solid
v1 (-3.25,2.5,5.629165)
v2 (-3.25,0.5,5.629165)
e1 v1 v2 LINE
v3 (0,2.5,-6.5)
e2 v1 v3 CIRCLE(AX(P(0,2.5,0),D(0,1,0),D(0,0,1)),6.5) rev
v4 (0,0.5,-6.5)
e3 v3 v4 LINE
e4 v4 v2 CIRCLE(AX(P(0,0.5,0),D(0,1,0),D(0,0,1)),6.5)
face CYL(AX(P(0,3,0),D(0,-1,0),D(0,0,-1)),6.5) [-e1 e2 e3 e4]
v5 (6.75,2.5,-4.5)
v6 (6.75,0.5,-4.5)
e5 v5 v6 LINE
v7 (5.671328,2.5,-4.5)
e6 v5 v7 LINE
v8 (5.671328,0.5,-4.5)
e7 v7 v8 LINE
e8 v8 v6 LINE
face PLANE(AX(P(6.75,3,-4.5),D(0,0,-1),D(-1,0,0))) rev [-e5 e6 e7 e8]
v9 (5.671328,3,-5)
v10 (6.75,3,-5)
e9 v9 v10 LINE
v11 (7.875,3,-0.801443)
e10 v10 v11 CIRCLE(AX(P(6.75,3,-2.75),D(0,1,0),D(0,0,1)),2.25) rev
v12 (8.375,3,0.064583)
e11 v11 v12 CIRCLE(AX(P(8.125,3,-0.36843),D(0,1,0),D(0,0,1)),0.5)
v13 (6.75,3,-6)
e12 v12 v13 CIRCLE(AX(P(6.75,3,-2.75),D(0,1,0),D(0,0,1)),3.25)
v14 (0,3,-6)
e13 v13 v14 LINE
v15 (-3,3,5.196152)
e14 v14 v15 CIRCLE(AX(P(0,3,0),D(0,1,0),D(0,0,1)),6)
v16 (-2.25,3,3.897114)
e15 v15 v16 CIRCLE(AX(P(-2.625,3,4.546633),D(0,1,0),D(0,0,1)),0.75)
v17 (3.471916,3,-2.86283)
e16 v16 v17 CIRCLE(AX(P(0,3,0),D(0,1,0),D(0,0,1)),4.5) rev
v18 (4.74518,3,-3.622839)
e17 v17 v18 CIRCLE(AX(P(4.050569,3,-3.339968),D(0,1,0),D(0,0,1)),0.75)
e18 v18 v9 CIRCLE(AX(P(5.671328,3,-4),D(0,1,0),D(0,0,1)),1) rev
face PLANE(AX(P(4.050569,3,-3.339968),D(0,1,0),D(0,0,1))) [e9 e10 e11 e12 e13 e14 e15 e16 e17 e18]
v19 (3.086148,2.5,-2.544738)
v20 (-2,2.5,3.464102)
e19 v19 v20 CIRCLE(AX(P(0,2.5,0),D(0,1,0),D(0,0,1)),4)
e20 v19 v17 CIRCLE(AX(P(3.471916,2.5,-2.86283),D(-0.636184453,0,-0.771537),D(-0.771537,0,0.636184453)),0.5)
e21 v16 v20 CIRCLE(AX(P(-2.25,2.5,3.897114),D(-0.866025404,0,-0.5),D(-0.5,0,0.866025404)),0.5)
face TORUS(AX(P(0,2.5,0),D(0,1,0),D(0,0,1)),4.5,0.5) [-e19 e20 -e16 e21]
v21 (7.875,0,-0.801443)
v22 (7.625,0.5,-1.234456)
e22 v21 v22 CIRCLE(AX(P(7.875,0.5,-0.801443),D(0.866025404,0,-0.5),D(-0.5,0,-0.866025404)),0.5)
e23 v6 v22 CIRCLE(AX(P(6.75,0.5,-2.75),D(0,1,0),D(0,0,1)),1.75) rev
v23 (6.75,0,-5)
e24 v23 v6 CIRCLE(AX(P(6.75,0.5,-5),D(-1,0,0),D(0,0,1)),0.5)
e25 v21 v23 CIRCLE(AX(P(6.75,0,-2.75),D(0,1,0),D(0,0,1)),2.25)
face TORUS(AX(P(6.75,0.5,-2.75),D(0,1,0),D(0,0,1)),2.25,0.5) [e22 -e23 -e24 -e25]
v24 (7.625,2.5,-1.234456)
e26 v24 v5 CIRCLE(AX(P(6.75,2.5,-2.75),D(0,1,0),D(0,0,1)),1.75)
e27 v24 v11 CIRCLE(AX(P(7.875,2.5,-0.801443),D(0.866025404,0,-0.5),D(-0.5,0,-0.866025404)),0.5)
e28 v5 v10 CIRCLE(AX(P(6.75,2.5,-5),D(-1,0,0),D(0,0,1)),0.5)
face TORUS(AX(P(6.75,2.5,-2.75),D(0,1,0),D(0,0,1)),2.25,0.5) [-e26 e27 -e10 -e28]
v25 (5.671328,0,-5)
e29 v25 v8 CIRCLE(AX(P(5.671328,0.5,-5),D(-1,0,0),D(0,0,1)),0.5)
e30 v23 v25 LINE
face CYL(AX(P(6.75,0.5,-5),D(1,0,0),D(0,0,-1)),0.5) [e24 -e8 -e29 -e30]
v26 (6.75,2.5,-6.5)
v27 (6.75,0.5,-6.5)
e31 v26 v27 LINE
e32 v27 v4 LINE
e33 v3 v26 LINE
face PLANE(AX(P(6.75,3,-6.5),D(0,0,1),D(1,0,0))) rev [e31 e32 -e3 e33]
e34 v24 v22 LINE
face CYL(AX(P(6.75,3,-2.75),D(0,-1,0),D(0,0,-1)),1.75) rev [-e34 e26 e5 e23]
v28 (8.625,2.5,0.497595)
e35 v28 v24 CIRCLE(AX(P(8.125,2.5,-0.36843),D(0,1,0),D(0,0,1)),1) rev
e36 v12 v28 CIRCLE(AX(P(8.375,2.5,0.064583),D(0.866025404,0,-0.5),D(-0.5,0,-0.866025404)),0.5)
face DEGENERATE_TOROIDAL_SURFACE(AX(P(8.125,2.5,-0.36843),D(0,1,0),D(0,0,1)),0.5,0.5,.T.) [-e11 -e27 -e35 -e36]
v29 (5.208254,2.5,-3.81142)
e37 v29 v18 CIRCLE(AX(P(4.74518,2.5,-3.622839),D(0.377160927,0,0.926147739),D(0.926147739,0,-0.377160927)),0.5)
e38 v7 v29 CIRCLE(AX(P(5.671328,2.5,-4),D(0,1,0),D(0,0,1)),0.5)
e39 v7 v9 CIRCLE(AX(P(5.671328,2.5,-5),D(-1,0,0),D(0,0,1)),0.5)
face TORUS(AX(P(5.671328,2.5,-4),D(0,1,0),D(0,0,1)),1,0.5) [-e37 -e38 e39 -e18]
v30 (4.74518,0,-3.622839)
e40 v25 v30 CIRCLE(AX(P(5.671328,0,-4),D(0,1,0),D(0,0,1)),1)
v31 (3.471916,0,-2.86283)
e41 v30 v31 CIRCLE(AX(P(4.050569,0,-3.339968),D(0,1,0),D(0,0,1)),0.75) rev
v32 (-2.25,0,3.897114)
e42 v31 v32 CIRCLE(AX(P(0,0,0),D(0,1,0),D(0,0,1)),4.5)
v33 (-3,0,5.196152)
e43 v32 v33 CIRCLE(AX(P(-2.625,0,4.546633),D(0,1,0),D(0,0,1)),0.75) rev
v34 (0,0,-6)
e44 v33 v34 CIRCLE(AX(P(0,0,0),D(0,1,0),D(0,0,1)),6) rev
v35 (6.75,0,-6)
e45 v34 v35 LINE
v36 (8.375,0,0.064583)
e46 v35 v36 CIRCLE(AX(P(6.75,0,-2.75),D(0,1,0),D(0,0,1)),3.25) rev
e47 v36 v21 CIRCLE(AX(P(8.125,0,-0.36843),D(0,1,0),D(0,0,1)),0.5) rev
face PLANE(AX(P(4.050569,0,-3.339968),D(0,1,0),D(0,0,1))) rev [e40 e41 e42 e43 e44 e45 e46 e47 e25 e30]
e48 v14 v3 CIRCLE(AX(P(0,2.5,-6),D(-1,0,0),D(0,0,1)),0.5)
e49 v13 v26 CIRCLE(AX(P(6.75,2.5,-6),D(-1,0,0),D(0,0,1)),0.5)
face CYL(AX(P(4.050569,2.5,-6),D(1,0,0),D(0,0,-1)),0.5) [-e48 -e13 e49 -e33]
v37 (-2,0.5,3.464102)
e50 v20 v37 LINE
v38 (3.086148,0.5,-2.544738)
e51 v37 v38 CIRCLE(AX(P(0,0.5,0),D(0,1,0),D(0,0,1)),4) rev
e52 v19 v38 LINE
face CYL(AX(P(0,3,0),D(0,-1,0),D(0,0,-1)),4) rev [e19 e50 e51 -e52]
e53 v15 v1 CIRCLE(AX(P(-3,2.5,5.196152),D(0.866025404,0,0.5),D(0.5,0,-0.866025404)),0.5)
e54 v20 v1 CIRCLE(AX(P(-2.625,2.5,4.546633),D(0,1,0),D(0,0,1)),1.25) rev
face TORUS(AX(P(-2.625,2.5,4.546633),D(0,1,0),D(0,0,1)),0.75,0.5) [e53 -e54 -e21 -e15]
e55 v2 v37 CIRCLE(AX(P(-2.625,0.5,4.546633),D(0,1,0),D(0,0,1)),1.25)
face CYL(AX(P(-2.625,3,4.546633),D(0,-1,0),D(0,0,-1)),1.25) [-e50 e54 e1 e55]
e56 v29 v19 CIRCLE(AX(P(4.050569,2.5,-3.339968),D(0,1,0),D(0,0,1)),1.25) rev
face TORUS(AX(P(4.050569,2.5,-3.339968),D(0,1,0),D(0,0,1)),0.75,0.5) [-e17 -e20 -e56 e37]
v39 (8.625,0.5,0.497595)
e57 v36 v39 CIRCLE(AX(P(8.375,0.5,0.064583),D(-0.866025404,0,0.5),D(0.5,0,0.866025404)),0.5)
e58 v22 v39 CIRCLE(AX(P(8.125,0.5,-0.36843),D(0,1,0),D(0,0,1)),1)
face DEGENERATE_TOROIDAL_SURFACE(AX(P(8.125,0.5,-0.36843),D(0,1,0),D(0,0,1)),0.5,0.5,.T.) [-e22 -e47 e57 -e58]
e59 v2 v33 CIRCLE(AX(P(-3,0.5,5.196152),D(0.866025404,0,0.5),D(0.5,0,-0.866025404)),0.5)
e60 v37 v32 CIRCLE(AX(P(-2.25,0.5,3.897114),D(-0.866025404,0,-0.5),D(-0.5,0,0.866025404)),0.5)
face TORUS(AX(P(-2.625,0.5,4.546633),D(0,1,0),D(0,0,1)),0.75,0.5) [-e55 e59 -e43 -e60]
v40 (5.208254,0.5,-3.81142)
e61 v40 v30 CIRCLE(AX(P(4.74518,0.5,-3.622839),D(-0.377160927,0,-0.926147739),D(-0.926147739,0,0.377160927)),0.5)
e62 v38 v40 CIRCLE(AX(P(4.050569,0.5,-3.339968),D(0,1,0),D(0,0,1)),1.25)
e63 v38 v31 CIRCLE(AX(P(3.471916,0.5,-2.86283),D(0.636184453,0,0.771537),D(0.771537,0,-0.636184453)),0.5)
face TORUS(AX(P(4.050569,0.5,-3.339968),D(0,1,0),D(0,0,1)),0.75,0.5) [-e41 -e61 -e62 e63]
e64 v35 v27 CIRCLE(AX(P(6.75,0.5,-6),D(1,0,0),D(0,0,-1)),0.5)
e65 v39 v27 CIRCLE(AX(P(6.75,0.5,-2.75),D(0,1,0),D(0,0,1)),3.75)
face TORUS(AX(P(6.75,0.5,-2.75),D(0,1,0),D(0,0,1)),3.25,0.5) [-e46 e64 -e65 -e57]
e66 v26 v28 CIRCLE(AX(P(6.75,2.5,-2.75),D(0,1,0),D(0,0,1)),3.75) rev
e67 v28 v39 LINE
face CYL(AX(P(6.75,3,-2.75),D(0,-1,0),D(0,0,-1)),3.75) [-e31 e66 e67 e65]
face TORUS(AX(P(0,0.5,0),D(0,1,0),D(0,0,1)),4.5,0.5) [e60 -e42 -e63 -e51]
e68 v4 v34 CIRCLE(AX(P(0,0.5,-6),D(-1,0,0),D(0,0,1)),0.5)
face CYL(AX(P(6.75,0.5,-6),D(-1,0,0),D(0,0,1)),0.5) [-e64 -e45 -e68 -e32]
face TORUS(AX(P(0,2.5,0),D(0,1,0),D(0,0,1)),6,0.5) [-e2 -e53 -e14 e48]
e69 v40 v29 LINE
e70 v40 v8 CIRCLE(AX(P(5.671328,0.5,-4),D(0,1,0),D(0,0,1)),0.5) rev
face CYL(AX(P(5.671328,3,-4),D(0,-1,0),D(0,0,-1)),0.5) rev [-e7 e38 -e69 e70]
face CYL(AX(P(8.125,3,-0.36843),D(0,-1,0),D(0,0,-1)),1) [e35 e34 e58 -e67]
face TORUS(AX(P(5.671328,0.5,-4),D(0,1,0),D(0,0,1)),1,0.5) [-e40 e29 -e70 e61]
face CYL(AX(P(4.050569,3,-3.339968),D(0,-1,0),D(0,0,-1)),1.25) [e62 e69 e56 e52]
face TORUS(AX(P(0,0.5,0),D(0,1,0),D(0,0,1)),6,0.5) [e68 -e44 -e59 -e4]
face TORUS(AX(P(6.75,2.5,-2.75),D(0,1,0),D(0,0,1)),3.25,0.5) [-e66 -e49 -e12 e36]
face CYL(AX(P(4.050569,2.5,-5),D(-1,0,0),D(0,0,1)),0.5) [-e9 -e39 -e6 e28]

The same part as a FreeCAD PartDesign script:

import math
import FreeCAD as App
import Part
import Sketcher
Q = App.Units.Quantity


def edges_at(feature, points):
    """Names of the edges that pass closest to the given points."""
    edges = feature.Shape.Edges
    near = lambda p: min(range(len(edges)), key=lambda i: edges[i].distToShape(Part.Vertex(*p))[0])
    return sorted({f"Edge{near(p) + 1}" for p in points})

doc = App.newDocument("Part")
body = doc.addObject("PartDesign::Body", "Body")

# Sketch on XZ plane
sketch1 = body.newObject("Sketcher::SketchObject", "Sketch")
sketch1.AttachmentSupport = (doc.getObject("XZ_Plane"), [""])
sketch1.MapMode = "FlatFace"
sketch1.addGeometry(Part.LineSegment(App.Vector(4.690416, -4.5, 0), App.Vector(6.75, -4.5, 0)), False)
sketch1.addGeometry(Part.ArcOfCircle(Part.Circle(App.Vector(6.75, -2.75, 0), App.Vector(0, 0, 1), 1.75), math.radians(-90), math.radians(60)), False)
sketch1.addGeometry(Part.ArcOfCircle(Part.Circle(App.Vector(8.125, -0.36843, 0), App.Vector(0, 0, 1), 1), math.radians(60), math.radians(240)), False)
sketch1.addGeometry(Part.ArcOfCircle(Part.Circle(App.Vector(6.75, -2.75, 0), App.Vector(0, 0, 1), 3.75), math.radians(-90), math.radians(60)), False)
sketch1.addGeometry(Part.LineSegment(App.Vector(6.75, -6.5, 0), App.Vector(0, -6.5, 0)), False)
sketch1.addGeometry(Part.ArcOfCircle(Part.Circle(App.Vector(0, 0, 0), App.Vector(0, 0, 1), 6.5), math.radians(120), math.radians(270)), False)
sketch1.addGeometry(Part.ArcOfCircle(Part.Circle(App.Vector(-2.625, 4.546633, 0), App.Vector(0, 0, 1), 1.25), math.radians(-60), math.radians(120)), False)
sketch1.addGeometry(Part.ArcOfCircle(Part.Circle(App.Vector(0, 0, 0), App.Vector(0, 0, 1), 4), math.radians(120), math.radians(320.492111)), False)
sketch1.addGeometry(Part.ArcOfCircle(Part.Circle(App.Vector(4.050569, -3.339968, 0), App.Vector(0, 0, 1), 1.25), math.radians(-39.507889), math.radians(140.492111)), False)
sketch1.addGeometry(Part.ArcOfCircle(Part.Circle(App.Vector(0, 0, 0), App.Vector(0, 0, 1), 6.5), math.radians(-43.813062), math.radians(-39.507888)), False)
sketch1.addConstraint(Sketcher.Constraint("Tangent", 0, 2, 1, 1))
sketch1.addConstraint(Sketcher.Constraint("Tangent", 1, 2, 2, 2))
sketch1.addConstraint(Sketcher.Constraint("Tangent", 2, 1, 3, 2))
sketch1.addConstraint(Sketcher.Constraint("Tangent", 3, 1, 4, 1))
sketch1.addConstraint(Sketcher.Constraint("Tangent", 4, 2, 5, 2))
sketch1.addConstraint(Sketcher.Constraint("Tangent", 5, 1, 6, 2))
sketch1.addConstraint(Sketcher.Constraint("Tangent", 6, 1, 7, 1))
sketch1.addConstraint(Sketcher.Constraint("Tangent", 7, 2, 8, 2))
sketch1.addConstraint(Sketcher.Constraint("Tangent", 8, 1, 9, 2))
sketch1.addConstraint(Sketcher.Constraint("Coincident", 9, 1, 0, 1))
sketch1.addConstraint(Sketcher.Constraint("Horizontal", 0))
sketch1.addConstraint(Sketcher.Constraint("Horizontal", 4))
sketch1.addConstraint(Sketcher.Constraint("Coincident", 5, 3, -1, 1))
sketch1.addConstraint(Sketcher.Constraint("Coincident", 7, 3, -1, 1))
sketch1.addConstraint(Sketcher.Constraint("Coincident", 9, 3, -1, 1))
sketch1.addConstraint(Sketcher.Constraint("Coincident", 3, 3, 1, 3))
sketch1.addConstraint(Sketcher.Constraint("Equal", 6, 8))
sketch1.addConstraint(Sketcher.Constraint("Radius", 2, Q("1 mm")))
sketch1.addConstraint(Sketcher.Constraint("Radius", 7, Q("4 mm")))
sketch1.addConstraint(Sketcher.Constraint("Radius", 5, Q("6.5 mm")))
sketch1.addConstraint(Sketcher.Constraint("Radius", 1, Q("1.75 mm")))
sketch1.addConstraint(Sketcher.Constraint("DistanceX", 6, 1, -1, 1, Q("2 mm")))
sketch1.addConstraint(Sketcher.Constraint("DistanceX", 1, 2, 2, 1, Q("1 mm")))
sketch1.addConstraint(Sketcher.Constraint("DistanceX", 4, 2, 4, 1, Q("6.75 mm")))
sketch1.addConstraint(Sketcher.Constraint("DistanceY", 8, 1, -1, 1, Q("4.135199 mm")))
pad1 = body.newObject("PartDesign::Pad", "Pad")
pad1.Profile = sketch1
pad1.Length = 3
pad1.Reversed = True
doc.recompute()

fillet = body.newObject("PartDesign::Fillet", "Fillet")
fillet.Base = (pad1, edges_at(pad1, [(4.69, 1.5, -4.5)]))
fillet.Radius = 0.5
doc.recompute()

fillet2 = body.newObject("PartDesign::Fillet", "Fillet001")
fillet2.Base = (fillet, edges_at(fillet, [
    (-6.279, 0, -1.682),
    (3.375, 0, -6.5),
    (10.372, 0, -3.721),
    (7.259, 0, 0.132),
    (8.44, 0, -3.203),
    (4.691, 0, -2.267),
    (8.44, 3, -3.203),
    (7.259, 3, 0.132),
    (10.372, 3, -3.721),
    (3.375, 3, -6.5),
    (-6.279, 3, -1.682),
    (-1.542, 3, 5.172),
    (6.211, 0, -4.5),
    (6.211, 3, -4.5),
    (5.256, 0, -4.279),
    (5.256, 3, -4.279),
    (-3.053, 3, -2.584),
    (4.691, 3, -2.267),
    (-3.053, 0, -2.584),
    (-1.542, 0, 5.172),
]))
fillet2.Radius = 0.5

doc.recompute()
